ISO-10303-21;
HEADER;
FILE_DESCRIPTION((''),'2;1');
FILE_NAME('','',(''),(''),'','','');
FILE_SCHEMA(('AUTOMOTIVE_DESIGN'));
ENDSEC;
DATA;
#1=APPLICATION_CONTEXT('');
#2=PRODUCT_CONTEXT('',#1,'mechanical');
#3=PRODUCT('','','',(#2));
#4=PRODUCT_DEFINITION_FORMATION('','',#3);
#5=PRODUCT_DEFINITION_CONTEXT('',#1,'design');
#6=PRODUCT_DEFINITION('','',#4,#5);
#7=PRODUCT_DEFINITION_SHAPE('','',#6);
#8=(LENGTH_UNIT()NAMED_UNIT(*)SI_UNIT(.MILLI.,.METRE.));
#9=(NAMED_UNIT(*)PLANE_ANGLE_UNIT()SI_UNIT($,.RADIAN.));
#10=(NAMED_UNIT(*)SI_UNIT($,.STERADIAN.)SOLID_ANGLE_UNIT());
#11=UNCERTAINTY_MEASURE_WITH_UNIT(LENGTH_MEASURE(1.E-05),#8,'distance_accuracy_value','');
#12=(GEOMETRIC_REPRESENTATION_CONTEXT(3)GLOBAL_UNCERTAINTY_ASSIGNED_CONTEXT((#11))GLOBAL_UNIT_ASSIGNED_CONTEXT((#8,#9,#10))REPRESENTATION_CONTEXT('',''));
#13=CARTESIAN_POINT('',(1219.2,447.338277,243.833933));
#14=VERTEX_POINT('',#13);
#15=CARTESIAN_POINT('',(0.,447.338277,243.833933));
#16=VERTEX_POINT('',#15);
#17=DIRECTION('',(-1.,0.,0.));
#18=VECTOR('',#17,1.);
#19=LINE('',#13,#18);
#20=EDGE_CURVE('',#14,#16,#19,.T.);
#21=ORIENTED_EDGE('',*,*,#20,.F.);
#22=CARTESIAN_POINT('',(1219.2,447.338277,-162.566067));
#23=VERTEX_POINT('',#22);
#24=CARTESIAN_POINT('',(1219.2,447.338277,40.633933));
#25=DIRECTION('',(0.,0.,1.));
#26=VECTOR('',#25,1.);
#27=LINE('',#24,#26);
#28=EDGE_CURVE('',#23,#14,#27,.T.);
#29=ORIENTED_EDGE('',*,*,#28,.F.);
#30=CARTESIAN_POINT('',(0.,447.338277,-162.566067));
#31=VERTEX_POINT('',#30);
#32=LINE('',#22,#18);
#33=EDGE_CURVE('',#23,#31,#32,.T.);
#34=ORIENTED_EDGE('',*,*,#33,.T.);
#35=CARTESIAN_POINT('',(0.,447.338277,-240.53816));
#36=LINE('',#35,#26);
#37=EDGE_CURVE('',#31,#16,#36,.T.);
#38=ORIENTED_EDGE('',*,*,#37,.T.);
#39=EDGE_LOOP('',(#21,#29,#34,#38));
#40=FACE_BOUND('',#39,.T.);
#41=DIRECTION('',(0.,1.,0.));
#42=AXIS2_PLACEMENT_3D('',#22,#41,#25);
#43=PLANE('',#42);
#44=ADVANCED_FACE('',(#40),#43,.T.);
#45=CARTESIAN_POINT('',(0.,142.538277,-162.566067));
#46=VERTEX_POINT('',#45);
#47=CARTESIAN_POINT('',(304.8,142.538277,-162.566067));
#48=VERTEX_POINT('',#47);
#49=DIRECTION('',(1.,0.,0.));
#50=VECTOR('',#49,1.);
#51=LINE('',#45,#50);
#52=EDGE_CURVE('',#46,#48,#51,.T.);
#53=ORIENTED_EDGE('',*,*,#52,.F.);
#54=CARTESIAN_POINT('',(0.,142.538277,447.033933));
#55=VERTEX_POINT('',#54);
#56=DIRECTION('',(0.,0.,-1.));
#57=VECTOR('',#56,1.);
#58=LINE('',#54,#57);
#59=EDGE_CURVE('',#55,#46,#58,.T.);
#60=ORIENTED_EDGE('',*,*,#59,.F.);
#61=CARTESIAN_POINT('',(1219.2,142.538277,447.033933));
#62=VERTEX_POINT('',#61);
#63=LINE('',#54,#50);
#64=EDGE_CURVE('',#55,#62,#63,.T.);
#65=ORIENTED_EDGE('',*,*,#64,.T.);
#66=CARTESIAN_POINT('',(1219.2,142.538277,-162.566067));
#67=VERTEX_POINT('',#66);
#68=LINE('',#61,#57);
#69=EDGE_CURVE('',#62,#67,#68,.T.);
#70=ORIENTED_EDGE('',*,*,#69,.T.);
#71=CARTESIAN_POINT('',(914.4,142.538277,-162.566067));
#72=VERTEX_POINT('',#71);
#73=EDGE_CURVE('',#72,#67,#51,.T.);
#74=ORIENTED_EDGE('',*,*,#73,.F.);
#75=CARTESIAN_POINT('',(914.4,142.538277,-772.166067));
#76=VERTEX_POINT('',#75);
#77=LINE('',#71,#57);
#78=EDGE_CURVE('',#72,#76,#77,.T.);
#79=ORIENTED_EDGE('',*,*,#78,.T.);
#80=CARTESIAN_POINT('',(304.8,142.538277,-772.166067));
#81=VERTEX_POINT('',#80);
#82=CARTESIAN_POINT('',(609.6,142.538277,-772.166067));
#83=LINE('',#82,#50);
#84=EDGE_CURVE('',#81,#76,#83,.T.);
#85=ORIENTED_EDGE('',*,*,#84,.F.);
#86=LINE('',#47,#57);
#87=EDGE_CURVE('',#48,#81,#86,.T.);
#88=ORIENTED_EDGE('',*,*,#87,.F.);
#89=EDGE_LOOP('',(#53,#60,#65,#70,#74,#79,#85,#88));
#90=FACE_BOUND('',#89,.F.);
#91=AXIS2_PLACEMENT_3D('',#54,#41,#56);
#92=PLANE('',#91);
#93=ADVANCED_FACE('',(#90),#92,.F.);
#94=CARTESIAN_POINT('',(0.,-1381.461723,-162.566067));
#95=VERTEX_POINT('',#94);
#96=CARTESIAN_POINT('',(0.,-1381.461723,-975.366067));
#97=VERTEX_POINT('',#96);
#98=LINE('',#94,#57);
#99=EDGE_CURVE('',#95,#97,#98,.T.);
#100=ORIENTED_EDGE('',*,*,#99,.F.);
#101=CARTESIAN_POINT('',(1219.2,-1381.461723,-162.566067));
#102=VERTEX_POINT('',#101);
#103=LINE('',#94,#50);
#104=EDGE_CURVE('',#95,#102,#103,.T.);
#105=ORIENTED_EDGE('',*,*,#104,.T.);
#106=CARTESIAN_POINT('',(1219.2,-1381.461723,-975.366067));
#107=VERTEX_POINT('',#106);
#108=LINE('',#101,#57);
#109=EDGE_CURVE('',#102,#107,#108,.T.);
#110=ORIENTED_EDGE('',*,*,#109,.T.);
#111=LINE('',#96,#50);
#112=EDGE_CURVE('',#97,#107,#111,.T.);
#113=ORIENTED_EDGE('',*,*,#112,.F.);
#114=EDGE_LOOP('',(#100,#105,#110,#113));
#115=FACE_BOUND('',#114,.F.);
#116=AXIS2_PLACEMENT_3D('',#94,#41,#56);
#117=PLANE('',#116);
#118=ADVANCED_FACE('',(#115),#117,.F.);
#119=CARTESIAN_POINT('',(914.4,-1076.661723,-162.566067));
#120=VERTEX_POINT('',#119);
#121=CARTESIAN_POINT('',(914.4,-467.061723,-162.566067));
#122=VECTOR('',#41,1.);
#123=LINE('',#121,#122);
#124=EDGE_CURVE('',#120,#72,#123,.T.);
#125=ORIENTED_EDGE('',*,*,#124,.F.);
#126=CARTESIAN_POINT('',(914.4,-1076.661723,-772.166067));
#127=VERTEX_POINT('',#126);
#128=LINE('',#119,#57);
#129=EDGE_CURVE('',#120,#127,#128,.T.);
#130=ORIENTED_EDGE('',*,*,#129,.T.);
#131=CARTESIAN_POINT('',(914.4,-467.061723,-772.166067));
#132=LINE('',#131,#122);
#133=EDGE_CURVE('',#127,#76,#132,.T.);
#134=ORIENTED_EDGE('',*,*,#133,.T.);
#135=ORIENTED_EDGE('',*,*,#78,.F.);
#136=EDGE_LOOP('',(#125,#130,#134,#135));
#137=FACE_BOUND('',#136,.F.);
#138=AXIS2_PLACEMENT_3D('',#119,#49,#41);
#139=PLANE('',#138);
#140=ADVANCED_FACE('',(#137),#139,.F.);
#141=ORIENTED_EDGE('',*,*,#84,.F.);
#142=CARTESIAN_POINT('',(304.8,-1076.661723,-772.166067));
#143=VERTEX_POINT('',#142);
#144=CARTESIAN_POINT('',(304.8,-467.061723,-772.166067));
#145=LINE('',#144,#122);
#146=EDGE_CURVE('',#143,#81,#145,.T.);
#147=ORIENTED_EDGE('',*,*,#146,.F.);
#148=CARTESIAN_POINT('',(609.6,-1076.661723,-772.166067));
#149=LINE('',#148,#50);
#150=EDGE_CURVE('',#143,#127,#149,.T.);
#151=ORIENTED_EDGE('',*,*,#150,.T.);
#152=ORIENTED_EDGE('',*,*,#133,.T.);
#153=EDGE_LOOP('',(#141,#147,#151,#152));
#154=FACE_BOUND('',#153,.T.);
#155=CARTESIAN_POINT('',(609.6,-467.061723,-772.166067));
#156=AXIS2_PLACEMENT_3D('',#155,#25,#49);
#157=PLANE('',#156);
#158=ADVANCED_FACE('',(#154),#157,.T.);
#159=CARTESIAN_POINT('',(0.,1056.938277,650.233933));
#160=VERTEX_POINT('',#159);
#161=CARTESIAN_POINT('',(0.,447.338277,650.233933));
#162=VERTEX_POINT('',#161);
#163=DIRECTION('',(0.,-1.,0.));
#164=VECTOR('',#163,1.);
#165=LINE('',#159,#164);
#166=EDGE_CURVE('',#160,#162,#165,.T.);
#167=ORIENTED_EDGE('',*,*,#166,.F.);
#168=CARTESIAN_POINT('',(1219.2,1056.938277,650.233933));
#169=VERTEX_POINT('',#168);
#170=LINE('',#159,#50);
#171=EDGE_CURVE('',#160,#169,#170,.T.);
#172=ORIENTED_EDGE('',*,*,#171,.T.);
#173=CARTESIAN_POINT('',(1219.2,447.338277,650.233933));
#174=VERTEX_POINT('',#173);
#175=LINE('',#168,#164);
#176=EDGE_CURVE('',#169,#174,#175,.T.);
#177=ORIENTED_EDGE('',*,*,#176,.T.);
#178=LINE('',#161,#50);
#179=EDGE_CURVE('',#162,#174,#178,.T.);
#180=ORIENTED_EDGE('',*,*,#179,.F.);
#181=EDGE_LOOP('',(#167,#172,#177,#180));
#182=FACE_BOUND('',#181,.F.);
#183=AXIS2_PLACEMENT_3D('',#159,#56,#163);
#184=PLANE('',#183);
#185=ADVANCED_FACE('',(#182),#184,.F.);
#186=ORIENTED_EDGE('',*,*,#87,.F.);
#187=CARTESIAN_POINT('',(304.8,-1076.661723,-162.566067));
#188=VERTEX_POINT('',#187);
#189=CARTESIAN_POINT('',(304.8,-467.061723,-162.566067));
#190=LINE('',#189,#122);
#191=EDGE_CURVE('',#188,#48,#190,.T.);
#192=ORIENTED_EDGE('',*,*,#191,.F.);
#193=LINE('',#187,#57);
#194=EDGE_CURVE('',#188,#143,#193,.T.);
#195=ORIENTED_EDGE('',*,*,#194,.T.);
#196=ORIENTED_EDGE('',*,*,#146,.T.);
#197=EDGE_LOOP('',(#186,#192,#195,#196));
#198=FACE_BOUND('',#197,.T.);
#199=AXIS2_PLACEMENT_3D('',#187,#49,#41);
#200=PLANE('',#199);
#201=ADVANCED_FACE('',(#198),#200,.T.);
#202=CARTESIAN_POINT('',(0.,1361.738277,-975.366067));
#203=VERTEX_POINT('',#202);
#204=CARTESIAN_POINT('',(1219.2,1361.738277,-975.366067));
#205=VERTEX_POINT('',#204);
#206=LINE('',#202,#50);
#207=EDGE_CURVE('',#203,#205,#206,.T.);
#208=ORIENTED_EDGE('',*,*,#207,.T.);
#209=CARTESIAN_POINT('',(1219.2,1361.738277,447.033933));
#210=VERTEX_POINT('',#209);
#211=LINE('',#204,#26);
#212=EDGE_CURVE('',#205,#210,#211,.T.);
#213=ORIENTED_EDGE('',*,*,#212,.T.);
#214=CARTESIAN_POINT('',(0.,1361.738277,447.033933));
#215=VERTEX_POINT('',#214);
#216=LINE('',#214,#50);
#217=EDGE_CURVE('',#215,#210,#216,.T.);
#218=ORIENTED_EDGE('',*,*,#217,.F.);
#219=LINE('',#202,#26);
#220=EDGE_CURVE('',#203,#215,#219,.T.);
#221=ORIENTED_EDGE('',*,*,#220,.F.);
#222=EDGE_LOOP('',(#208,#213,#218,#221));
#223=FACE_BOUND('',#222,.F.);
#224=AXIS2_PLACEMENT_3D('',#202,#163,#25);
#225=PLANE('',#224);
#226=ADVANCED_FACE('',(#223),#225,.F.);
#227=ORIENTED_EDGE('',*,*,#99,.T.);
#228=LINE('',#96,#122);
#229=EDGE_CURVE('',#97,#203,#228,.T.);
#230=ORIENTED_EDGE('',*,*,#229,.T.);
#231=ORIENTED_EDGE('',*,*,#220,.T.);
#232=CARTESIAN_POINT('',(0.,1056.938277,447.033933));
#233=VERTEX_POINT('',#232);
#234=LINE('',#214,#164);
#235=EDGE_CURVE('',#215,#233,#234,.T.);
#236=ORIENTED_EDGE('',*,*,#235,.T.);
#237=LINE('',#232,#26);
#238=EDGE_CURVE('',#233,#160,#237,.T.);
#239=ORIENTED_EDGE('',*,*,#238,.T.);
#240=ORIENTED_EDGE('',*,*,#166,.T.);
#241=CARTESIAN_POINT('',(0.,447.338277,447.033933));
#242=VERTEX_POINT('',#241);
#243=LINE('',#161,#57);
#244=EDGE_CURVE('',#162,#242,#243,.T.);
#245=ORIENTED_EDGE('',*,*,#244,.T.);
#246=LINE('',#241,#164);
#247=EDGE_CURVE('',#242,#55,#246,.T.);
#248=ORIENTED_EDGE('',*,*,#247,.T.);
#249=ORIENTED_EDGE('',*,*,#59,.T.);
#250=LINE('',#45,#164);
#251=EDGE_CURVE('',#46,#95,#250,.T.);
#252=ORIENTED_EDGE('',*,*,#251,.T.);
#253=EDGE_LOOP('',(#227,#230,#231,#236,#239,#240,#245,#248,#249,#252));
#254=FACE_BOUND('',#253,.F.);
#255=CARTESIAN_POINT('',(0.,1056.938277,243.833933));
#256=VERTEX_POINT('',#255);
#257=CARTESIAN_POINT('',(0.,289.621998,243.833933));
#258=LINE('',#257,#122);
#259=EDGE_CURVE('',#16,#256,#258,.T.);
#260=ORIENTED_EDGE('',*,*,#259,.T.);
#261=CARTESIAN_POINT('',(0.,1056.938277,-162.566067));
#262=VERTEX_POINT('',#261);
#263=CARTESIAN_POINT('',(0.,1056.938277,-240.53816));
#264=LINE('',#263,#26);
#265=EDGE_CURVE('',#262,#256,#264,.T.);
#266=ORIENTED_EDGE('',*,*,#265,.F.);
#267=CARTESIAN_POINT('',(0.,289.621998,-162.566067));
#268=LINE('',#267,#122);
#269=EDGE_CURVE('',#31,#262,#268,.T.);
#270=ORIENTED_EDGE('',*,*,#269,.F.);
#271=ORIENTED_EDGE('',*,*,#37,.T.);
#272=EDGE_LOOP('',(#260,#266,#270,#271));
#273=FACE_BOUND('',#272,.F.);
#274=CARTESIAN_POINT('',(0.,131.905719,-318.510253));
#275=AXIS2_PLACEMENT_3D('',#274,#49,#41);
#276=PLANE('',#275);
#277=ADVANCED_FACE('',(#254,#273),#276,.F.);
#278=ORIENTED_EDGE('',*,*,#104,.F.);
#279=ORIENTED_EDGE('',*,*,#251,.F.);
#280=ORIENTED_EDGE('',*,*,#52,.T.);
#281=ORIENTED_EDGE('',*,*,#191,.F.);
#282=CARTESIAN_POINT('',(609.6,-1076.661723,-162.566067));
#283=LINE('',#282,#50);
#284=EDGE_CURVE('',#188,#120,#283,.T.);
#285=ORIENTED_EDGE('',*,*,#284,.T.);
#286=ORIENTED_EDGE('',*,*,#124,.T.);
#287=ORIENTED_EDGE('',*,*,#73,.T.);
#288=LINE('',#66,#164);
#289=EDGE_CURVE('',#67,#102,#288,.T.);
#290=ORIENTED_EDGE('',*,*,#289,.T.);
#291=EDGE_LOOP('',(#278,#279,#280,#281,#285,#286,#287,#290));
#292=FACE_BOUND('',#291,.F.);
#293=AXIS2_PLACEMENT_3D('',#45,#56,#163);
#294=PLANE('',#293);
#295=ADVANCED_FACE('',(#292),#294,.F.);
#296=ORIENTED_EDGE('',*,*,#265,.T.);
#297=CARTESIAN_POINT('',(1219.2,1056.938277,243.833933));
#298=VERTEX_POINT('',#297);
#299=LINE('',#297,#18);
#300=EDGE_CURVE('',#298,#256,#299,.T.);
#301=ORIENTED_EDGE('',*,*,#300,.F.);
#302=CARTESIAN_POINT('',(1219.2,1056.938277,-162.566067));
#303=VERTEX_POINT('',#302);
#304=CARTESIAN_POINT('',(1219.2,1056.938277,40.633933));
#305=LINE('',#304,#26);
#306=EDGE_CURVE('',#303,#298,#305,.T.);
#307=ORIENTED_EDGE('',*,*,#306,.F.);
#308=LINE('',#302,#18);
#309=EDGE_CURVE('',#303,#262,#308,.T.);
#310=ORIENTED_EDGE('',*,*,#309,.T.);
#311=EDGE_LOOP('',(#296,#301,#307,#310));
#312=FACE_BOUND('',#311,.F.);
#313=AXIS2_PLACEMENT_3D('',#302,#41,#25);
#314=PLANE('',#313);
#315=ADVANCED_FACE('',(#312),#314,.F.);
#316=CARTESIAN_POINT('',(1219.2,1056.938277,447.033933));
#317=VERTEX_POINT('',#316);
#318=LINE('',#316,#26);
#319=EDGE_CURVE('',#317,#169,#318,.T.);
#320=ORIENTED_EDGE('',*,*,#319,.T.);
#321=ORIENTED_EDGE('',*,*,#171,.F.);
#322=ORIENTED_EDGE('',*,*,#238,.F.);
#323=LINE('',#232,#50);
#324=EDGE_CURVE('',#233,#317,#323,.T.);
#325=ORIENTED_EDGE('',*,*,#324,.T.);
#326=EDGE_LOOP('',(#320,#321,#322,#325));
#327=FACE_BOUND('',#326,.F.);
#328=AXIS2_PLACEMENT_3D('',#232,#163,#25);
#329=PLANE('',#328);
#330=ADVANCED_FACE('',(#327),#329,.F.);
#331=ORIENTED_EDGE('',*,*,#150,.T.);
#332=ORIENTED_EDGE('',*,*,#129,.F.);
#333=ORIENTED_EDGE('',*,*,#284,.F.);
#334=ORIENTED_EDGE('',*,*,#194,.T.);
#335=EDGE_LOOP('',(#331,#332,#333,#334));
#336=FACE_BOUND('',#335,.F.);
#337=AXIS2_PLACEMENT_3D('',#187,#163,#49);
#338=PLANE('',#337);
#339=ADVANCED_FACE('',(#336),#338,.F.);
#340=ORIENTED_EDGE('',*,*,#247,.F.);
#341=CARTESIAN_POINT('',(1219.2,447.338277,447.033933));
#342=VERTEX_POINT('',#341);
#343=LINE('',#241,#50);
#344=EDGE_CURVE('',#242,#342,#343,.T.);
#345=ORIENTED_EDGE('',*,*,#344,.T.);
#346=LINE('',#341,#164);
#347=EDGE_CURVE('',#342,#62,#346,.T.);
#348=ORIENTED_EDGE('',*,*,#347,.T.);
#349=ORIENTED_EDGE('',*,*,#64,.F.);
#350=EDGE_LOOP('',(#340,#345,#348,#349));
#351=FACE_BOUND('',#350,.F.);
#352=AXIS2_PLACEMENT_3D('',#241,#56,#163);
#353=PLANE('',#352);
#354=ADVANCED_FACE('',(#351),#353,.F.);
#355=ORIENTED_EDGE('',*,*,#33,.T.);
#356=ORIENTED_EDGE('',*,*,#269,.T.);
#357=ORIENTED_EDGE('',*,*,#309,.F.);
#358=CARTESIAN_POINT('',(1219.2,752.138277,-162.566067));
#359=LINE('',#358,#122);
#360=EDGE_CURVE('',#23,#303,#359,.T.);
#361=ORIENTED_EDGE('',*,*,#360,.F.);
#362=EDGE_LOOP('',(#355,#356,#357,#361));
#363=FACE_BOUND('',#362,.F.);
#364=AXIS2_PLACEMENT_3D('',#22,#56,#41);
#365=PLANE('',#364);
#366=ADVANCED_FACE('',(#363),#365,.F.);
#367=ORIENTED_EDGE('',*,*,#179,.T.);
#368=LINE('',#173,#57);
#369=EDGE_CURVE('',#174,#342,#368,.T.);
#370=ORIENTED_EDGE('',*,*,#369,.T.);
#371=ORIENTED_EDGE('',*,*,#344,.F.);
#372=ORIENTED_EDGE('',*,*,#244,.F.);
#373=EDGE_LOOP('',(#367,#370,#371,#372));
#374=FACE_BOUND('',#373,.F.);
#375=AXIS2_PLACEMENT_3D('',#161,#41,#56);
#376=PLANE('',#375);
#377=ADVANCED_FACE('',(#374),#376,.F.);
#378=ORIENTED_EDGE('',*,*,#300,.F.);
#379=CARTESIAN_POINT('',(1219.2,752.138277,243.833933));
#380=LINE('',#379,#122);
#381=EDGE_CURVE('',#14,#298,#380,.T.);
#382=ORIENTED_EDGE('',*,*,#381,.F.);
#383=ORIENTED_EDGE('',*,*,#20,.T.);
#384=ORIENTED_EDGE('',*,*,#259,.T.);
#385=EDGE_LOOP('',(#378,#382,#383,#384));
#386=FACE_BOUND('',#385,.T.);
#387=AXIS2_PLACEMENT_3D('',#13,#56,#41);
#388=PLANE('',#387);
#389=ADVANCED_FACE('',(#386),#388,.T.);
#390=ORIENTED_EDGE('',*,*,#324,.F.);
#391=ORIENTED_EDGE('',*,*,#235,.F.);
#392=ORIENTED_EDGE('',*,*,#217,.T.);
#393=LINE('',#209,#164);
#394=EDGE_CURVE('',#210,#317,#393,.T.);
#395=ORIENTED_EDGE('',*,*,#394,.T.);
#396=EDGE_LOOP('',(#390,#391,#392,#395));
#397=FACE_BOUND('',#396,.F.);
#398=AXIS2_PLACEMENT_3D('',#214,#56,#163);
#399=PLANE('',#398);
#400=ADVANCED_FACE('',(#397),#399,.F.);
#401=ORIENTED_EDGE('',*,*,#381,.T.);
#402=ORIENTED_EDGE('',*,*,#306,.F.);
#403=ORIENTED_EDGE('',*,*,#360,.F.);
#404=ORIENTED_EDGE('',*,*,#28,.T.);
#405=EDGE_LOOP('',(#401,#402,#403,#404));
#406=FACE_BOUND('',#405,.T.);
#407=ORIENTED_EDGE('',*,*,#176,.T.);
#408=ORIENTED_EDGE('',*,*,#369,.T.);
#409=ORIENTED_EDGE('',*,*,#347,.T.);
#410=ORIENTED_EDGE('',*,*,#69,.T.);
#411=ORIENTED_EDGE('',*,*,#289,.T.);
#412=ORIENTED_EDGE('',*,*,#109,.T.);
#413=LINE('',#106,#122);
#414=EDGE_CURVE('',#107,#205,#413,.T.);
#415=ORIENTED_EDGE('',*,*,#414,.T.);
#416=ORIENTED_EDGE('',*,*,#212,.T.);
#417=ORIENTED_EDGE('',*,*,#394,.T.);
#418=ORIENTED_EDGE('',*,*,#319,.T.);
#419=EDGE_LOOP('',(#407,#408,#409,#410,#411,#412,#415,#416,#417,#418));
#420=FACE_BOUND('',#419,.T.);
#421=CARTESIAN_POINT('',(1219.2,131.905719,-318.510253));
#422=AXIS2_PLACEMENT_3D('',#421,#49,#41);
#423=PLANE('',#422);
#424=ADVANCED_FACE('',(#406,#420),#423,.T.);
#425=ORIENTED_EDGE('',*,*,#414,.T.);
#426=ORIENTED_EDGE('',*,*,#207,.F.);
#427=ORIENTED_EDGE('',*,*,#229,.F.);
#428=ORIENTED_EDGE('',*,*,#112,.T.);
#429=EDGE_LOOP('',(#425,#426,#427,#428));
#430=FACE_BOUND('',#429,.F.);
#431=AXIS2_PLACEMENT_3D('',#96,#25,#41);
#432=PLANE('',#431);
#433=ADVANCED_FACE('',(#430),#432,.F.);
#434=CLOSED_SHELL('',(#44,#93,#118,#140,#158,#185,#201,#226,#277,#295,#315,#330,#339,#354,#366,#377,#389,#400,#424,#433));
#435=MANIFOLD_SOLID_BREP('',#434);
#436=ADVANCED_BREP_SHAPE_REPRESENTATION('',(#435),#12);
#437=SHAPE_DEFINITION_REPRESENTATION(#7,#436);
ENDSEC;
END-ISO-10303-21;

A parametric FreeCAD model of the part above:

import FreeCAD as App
import Part
import Sketcher

V = App.Vector
Q = App.Units.Quantity


def add_polygon(sketch, points):
    """Adds a closed chain of lines whose ends are joined by coincident constraints."""
    first, n = sketch.GeometryCount, len(points)
    for a, b in zip(points, points[1:] + points[:1]):
        sketch.addGeometry(Part.LineSegment(App.Vector(*a, 0), App.Vector(*b, 0)), False)
    for i in range(n):
        sketch.addConstraint(Sketcher.Constraint("Coincident", first + i, 2, first + (i + 1) % n, 1))

doc = App.newDocument("Part")
body = doc.addObject("PartDesign::Body", "Body")

# Sketch on YZ plane
sketch1 = body.newObject("Sketcher::SketchObject", "Sketch")
sketch1.AttachmentSupport = (doc.getObject("YZ_Plane"), [""])
sketch1.MapMode = "FlatFace"
add_polygon(sketch1, [(-1381, -163), (-1381, -975), (1362, -975), (1362, 447), (1057, 447), (1057, 650), (447, 650), (447, 447), (143, 447), (143, -163)])  # lines 0-9
sketch1.addConstraint([
    Sketcher.Constraint("Vertical", 0),
    Sketcher.Constraint("Horizontal", 1),
    Sketcher.Constraint("Vertical", 2),
    Sketcher.Constraint("Horizontal", 3),
    Sketcher.Constraint("Vertical", 4),
    Sketcher.Constraint("Horizontal", 5),
    Sketcher.Constraint("Vertical", 6),
    Sketcher.Constraint("Horizontal", 7),
    Sketcher.Constraint("Vertical", 8),
    Sketcher.Constraint("Horizontal", 9),
    Sketcher.Constraint("Horizontal", 3, 2, 6, 2),
    Sketcher.Constraint("Equal", 3, 7),
    Sketcher.Constraint("Equal", 5, 8),
    Sketcher.Constraint("DistanceX", 1, 1, 1, 2, Q("108 in")),
    Sketcher.Constraint("DistanceX", 3, 2, 3, 1, Q("12 in")),
    Sketcher.Constraint("DistanceX", 5, 2, 5, 1, Q("24 in")),
    Sketcher.Constraint("DistanceY", 0, 2, 0, 1, Q("32 in")),
    Sketcher.Constraint("DistanceY", 4, 1, 4, 2, Q("8 in")),
    Sketcher.Constraint("DistanceX", 0, 2, -1, 1, Q("1381.461723 mm")),
    Sketcher.Constraint("DistanceY", 0, 2, -1, 1, Q("975.366067 mm")),
])
pad1 = body.newObject("PartDesign::Pad", "Pad")
pad1.Profile = sketch1
pad1.Length = Q("48 in")

# Sketch on XY plane
sketch2 = body.newObject("Sketcher::SketchObject", "Sketch001")
sketch2.AttachmentSupport = (doc.getObject("XY_Plane"), [""])
sketch2.MapMode = "FlatFace"
sketch2.AttachmentOffset = App.Placement(V(0, 0, -162.566067), App.Rotation())
add_polygon(sketch2, [(305, 143), (305, -1077), (914, -1077), (914, 143)])  # lines 0-3
sketch2.addConstraint([
    Sketcher.Constraint("Vertical", 0),
    Sketcher.Constraint("Horizontal", 1),
    Sketcher.Constraint("Vertical", 2),
    Sketcher.Constraint("Horizontal", 3),
    Sketcher.Constraint("DistanceX", 1, 1, 1, 2, Q("24 in")),
    Sketcher.Constraint("DistanceY", 0, 2, 0, 1, Q("48 in")),
    Sketcher.Constraint("DistanceX", -1, 1, 0, 2, Q("12 in")),
    Sketcher.Constraint("DistanceY", 0, 2, -1, 1, Q("1076.661723 mm")),
])
pocket1 = body.newObject("PartDesign::Pocket", "Pocket")
pocket1.Profile = sketch2
pocket1.Length = Q("24 in")

# Sketch on YZ plane
sketch3 = body.newObject("Sketcher::SketchObject", "Sketch002")
sketch3.AttachmentSupport = (doc.getObject("YZ_Plane"), [""])
sketch3.MapMode = "FlatFace"
sketch3.AttachmentOffset = App.Placement(V(0, 0, 48 * 25.4), App.Rotation())
add_polygon(sketch3, [(447, 244), (447, -163), (1057, -163), (1057, 244)])  # lines 0-3
sketch3.addConstraint([
    Sketcher.Constraint("Vertical", 0),
    Sketcher.Constraint("Horizontal", 1),
    Sketcher.Constraint("Vertical", 2),
    Sketcher.Constraint("Horizontal", 3),
    Sketcher.Constraint("DistanceX", 1, 1, 1, 2, Q("24 in")),
    Sketcher.Constraint("DistanceY", 0, 2, 0, 1, Q("16 in")),
    Sketcher.Constraint("DistanceX", -1, 1, 0, 2, Q("447.338277 mm")),
    Sketcher.Constraint("DistanceY", 0, 2, -1, 1, Q("162.566067 mm")),
])
pocket2 = body.newObject("PartDesign::Pocket", "Pocket001")
pocket2.Profile = sketch3
pocket2.Type = "ThroughAll"

doc.recompute()
